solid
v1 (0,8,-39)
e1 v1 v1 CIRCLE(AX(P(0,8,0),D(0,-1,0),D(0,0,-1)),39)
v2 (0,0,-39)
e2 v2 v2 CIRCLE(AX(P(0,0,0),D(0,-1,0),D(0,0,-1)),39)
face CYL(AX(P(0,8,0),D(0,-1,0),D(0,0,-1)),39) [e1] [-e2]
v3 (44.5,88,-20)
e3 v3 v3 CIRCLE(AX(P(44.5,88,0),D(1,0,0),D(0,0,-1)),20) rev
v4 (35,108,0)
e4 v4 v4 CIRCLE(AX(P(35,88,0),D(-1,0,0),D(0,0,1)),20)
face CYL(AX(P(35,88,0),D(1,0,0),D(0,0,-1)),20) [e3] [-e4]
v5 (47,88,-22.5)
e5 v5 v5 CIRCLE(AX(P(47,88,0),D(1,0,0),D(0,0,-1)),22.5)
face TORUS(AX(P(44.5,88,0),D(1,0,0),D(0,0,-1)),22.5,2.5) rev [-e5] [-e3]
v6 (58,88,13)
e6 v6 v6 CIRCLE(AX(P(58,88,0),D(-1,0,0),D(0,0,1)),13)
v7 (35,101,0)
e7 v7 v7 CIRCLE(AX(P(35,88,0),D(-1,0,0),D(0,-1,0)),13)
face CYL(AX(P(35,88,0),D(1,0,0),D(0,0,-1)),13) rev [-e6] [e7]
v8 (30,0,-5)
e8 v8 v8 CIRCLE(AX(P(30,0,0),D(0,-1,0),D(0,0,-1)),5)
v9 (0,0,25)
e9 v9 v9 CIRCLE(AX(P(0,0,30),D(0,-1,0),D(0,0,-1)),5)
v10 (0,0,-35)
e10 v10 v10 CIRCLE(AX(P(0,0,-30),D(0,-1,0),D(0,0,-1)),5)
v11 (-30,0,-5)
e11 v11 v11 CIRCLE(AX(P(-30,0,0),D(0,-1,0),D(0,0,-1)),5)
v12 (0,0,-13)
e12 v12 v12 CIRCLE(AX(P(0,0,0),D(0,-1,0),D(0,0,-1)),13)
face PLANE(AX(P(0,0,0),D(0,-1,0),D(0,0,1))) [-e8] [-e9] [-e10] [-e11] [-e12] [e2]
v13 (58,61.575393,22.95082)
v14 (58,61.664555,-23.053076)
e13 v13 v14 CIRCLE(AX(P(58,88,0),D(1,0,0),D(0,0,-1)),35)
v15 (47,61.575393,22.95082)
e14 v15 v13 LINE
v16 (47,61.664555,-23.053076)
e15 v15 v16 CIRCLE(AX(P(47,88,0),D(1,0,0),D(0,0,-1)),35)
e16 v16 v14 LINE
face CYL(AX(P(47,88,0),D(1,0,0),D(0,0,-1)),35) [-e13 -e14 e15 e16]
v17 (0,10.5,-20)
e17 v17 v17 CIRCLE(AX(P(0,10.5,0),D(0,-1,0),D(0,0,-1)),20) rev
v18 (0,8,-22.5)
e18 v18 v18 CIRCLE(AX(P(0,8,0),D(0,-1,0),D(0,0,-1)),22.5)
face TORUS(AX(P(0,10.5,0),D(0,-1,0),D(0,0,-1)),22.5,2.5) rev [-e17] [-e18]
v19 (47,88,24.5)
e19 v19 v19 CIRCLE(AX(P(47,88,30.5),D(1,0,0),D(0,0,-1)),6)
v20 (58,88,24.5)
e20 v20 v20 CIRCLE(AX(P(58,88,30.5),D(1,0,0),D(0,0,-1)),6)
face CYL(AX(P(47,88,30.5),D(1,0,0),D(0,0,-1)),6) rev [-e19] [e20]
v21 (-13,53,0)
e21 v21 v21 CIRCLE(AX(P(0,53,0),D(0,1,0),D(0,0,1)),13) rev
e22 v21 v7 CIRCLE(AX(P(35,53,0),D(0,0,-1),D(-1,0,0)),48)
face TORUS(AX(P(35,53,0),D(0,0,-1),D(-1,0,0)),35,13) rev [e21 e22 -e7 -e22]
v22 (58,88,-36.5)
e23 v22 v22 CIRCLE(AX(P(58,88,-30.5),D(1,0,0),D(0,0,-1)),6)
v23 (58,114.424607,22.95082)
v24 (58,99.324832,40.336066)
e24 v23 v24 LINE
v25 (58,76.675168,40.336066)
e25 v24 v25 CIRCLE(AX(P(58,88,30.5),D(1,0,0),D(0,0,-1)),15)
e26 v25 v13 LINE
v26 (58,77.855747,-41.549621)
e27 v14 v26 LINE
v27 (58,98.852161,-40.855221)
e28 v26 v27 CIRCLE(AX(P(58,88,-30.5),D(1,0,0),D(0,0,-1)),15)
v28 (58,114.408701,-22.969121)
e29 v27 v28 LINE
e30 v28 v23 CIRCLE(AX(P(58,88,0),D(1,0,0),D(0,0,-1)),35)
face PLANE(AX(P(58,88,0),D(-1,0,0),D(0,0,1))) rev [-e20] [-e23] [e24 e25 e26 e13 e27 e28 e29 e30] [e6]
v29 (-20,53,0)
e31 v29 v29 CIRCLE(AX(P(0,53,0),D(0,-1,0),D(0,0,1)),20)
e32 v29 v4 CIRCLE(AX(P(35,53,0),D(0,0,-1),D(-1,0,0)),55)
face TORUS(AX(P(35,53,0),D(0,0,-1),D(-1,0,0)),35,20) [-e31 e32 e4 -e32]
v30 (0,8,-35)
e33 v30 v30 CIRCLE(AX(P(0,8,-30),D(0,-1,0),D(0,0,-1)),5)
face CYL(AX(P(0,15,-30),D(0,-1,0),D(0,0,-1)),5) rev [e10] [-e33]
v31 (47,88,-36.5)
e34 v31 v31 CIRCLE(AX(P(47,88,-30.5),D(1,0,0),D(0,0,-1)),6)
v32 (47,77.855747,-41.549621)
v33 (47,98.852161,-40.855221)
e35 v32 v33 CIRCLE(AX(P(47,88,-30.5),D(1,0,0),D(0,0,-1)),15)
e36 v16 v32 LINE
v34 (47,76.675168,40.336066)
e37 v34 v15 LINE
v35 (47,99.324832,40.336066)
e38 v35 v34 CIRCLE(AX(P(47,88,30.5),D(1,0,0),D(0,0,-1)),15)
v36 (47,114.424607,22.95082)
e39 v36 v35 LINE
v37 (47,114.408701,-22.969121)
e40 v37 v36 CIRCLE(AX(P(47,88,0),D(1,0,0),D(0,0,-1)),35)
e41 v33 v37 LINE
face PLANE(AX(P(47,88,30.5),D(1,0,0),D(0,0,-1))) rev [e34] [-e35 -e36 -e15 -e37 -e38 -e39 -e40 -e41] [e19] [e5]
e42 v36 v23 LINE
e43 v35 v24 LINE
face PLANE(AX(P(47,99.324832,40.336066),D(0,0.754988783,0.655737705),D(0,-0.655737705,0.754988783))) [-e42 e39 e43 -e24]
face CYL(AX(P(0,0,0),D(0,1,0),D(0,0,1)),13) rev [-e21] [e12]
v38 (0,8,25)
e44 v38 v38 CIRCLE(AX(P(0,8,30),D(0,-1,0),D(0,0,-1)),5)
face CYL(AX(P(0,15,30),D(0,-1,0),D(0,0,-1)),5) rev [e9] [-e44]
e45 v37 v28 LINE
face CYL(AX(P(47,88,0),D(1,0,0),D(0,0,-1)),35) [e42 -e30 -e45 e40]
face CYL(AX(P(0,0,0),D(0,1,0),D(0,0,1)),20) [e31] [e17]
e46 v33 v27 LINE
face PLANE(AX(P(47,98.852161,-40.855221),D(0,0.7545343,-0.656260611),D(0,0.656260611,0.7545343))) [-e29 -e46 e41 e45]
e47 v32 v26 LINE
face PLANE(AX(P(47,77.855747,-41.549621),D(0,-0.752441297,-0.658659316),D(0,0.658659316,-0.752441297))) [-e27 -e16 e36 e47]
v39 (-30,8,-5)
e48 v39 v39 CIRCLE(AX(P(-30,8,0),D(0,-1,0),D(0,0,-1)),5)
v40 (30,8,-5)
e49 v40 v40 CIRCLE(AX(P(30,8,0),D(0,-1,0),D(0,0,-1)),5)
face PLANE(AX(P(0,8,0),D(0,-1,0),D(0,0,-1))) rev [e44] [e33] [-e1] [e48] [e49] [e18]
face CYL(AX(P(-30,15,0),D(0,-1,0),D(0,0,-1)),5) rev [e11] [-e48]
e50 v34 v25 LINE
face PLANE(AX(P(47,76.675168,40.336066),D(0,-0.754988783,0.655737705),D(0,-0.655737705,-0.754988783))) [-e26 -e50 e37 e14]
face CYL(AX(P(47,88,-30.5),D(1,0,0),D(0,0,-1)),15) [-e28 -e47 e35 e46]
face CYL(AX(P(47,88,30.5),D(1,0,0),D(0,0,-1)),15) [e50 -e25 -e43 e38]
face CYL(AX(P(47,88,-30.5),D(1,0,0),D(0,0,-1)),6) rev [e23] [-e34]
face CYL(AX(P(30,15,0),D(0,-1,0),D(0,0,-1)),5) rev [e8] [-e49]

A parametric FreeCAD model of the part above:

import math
import FreeCAD as App
import Part
import Sketcher


def edges_at(feature, points):
    """Names of the edges that pass closest to the given points."""
    edges = feature.Shape.Edges
    near = lambda p: min(range(len(edges)), key=lambda i: edges[i].distToShape(Part.Vertex(*p))[0])
    return sorted({f"Edge{near(p) + 1}" for p in points})

doc = App.newDocument("Part")
body = doc.addObject("PartDesign::Body", "Body")

# Sketch on XZ plane
sketch1 = body.newObject("Sketcher::SketchObject", "Sketch")
sketch1.AttachmentSupport = (doc.getObject("XZ_Plane"), [""])
sketch1.MapMode = "FlatFace"
sketch1.addGeometry([
    Part.Circle(App.Vector(0, 0, 0), App.Vector(0, 0, 1), 20),
    Part.Circle(App.Vector(0, 0, 0), App.Vector(0, 0, 1), 13),
], False)
sketch1.addConstraint([
    Sketcher.Constraint("Coincident", 0, 3, -1, 1),
    Sketcher.Constraint("Coincident", 1, 3, -1, 1),
    Sketcher.Constraint("Diameter", 0, 40.0),
    Sketcher.Constraint("Diameter", 1, 26.0),
])

# Sketch on XY plane
sketch2 = body.newObject("Sketcher::SketchObject", "Sketch001")
sketch2.AttachmentSupport = (doc.getObject("XY_Plane"), [""])
sketch2.MapMode = "FlatFace"
sketch2.addGeometry([
    Part.LineSegment(App.Vector(0, 0, 0), App.Vector(0, 53, 0)),
    Part.ArcOfCircle(Part.Circle(App.Vector(35, 53, 0), App.Vector(0, 0, 1), 35), math.radians(90), math.radians(180)),
    Part.LineSegment(App.Vector(35, 88, 0), App.Vector(58, 88, 0)),
], False)
sketch2.addConstraint([
    Sketcher.Constraint("Tangent", 0, 2, 1, 2),
    Sketcher.Constraint("Tangent", 1, 1, 2, 1),
    Sketcher.Constraint("Vertical", 0),
    Sketcher.Constraint("Horizontal", 2),
    Sketcher.Constraint("Coincident", 0, 1, -1, 1),
    Sketcher.Constraint("Radius", 1, 35.0),
    Sketcher.Constraint("DistanceX", 2, 1, 2, 2, 23.0),
    Sketcher.Constraint("DistanceY", 0, 1, 0, 2, 53.0),
])
doc.recompute()

additivepipe = body.newObject("PartDesign::AdditivePipe", "AdditivePipe")
additivepipe.Profile = sketch1
additivepipe.Spine = (sketch2, ["Edge1", "Edge2", "Edge3"])

# Sketch on YZ plane
sketch3 = body.newObject("Sketcher::SketchObject", "Sketch002")
sketch3.AttachmentSupport = (doc.getObject("YZ_Plane"), [""])
sketch3.MapMode = "FlatFace"
sketch3.AttachmentOffset = App.Placement(App.Vector(0, 0, 58), App.Rotation())
sketch3.addGeometry([
    Part.LineSegment(App.Vector(114, 23, 0), App.Vector(99, 40, 0)),  # 0
    Part.ArcOfCircle(Part.Circle(App.Vector(88, 30, 0), App.Vector(0, 0, 1), 15), math.radians(41), math.radians(139)),  # 1
    Part.LineSegment(App.Vector(77, 40, 0), App.Vector(62, 23, 0)),  # 2
    Part.ArcOfCircle(Part.Circle(App.Vector(88, 0, 0), App.Vector(0, 0, 1), 35), math.radians(139), math.radians(221)),  # 3
    Part.LineSegment(App.Vector(62, -23, 0), App.Vector(78, -42, 0)),  # 4
    Part.ArcOfCircle(Part.Circle(App.Vector(88, -30, 0), App.Vector(0, 0, 1), 15), math.radians(-133), math.radians(-44)),  # 5
    Part.LineSegment(App.Vector(99, -41, 0), App.Vector(114, -23, 0)),  # 6
    Part.ArcOfCircle(Part.Circle(App.Vector(88, 0, 0), App.Vector(0, 0, 1), 35), math.radians(-41), math.radians(41)),  # 7
    Part.Circle(App.Vector(88, -30, 0), App.Vector(0, 0, 1), 6),  # 8
    Part.Circle(App.Vector(88, 0, 0), App.Vector(0, 0, 1), 20),  # 9
    Part.Circle(App.Vector(88, 30, 0), App.Vector(0, 0, 1), 6),  # 10
], False)
sketch3.addConstraint([
    Sketcher.Constraint("Tangent", 0, 2, 1, 1),
    Sketcher.Constraint("Tangent", 1, 2, 2, 1),
    Sketcher.Constraint("Tangent", 2, 2, 3, 1),
    Sketcher.Constraint("Tangent", 3, 2, 4, 1),
    Sketcher.Constraint("Coincident", 4, 2, 5, 1),
    Sketcher.Constraint("Coincident", 5, 2, 6, 1),
    Sketcher.Constraint("Tangent", 6, 2, 7, 1),
    Sketcher.Constraint("Tangent", 7, 2, 0, 1),
    Sketcher.Constraint("Coincident", 7, 3, 3, 3),
    Sketcher.Constraint("Coincident", 8, 3, 5, 3),
    Sketcher.Constraint("Coincident", 9, 3, 3, 3),
    Sketcher.Constraint("Coincident", 10, 3, 1, 3),
    Sketcher.Constraint("Equal", 1, 5),
    Sketcher.Constraint("Equal", 3, 7),
    Sketcher.Constraint("Equal", 8, 10),
    Sketcher.Constraint("Symmetric", 1, 3, 5, 3, -1),
    Sketcher.Constraint("PointOnObject", 3, 3, -1),
    Sketcher.Constraint("Horizontal", 0, 2, 1, 2),
    Sketcher.Constraint("Diameter", 8, 12.0),
    Sketcher.Constraint("Diameter", 9, 40.0),
    Sketcher.Constraint("Radius", 1, 15.0),
    Sketcher.Constraint("Radius", 3, 35.0),
    Sketcher.Constraint("DistanceX", -1, 1, 1, 3, 88.0),
    Sketcher.Constraint("DistanceY", 5, 3, 1, 3, 61.0),
    Sketcher.Constraint("DistanceX", -1, 1, 6, 2, 114.408701),
    Sketcher.Constraint("DistanceY", 4, 2, 5, 2, 0.6944),
])
pad1 = body.newObject("PartDesign::Pad", "Pad")
pad1.Profile = sketch3
pad1.Length = 11
pad1.Reversed = True

# Sketch on XZ plane
sketch4 = body.newObject("Sketcher::SketchObject", "Sketch003")
sketch4.AttachmentSupport = (doc.getObject("XZ_Plane"), [""])
sketch4.MapMode = "FlatFace"
sketch4.addGeometry([
    Part.Circle(App.Vector(0, 0, 0), App.Vector(0, 0, 1), 39),
    Part.Circle(App.Vector(0, 0, 0), App.Vector(0, 0, 1), 13),
], False)
sketch4.addConstraint([
    Sketcher.Constraint("Coincident", 0, 3, -1, 1),
    Sketcher.Constraint("Coincident", 1, 3, -1, 1),
    Sketcher.Constraint("Diameter", 0, 78.0),
    Sketcher.Constraint("Diameter", 1, 26.0),
])
pad2 = body.newObject("PartDesign::Pad", "Pad001")
pad2.Profile = sketch4
pad2.Length = 8
pad2.Reversed = True

# Sketch on XZ plane
sketch5 = body.newObject("Sketcher::SketchObject", "Sketch004")
sketch5.AttachmentSupport = (doc.getObject("XZ_Plane"), [""])
sketch5.MapMode = "FlatFace"
sketch5.addGeometry([
    Part.Circle(App.Vector(0, 30, 0), App.Vector(0, 0, 1), 5),
    Part.Circle(App.Vector(0, -30, 0), App.Vector(0, 0, 1), 5),
    Part.Circle(App.Vector(30, 0, 0), App.Vector(0, 0, 1), 5),
    Part.Circle(App.Vector(-30, 0, 0), App.Vector(0, 0, 1), 5),
], False)
sketch5.addConstraint([
    Sketcher.Constraint("Equal", 0, 1),
    Sketcher.Constraint("Equal", 1, 2),
    Sketcher.Constraint("Equal", 2, 3),
    Sketcher.Constraint("Symmetric", 0, 3, 1, 3, -1, 1),
    Sketcher.Constraint("Symmetric", 2, 3, 3, 3, -1, 1),
    Sketcher.Constraint("PointOnObject", 0, 3, -2),
    Sketcher.Constraint("PointOnObject", 2, 3, -1),
    Sketcher.Constraint("Diameter", 0, 10.0),
    Sketcher.Constraint("DistanceY", -1, 1, 0, 3, 30.0),
    Sketcher.Constraint("DistanceX", -1, 1, 2, 3, 30.0),
])
pocket1 = body.newObject("PartDesign::Pocket", "Pocket")
pocket1.Profile = sketch5
pocket1.Length = 15
doc.recompute()

fillet = body.newObject("PartDesign::Fillet", "Fillet")
fillet.Base = (pocket1, edges_at(pocket1, [(47, 88, -20)]))
fillet.Radius = 2.5
doc.recompute()

fillet2 = body.newObject("PartDesign::Fillet", "Fillet001")
fillet2.Base = (fillet, edges_at(fillet, [(0, 8, -20)]))
fillet2.Radius = 2.5

doc.recompute()
